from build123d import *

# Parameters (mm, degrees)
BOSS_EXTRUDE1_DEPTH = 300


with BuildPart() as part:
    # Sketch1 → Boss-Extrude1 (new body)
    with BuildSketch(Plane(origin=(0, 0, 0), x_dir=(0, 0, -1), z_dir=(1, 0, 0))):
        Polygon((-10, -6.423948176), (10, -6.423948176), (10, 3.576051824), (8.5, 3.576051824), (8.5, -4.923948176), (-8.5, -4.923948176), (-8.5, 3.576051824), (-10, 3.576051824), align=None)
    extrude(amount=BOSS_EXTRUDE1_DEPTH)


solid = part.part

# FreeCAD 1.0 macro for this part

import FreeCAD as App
import Part
import Sketcher
from FreeCAD import Vector
Q = App.Units.Quantity

doc = App.newDocument("Part")
body = doc.addObject("PartDesign::Body", "Body")

# Sketch on YZ plane
sketch1 = body.newObject("Sketcher::SketchObject", "Sketch")
sketch1.AttachmentSupport = (doc.getObject("YZ_Plane"), [""])
sketch1.MapMode = "FlatFace"
sketch1.addGeometry([
    Part.LineSegment(Vector(-6.423948, 10, 0), Vector(-6.423948, -10, 0)),  # 0
    Part.LineSegment(Vector(-6.423948, -10, 0), Vector(3.576052, -10, 0)),  # 1
    Part.LineSegment(Vector(3.576052, -10, 0), Vector(3.576052, -8.5, 0)),  # 2
    Part.LineSegment(Vector(3.576052, -8.5, 0), Vector(-4.923948, -8.5, 0)),  # 3
    Part.LineSegment(Vector(-4.923948, -8.5, 0), Vector(-4.923948, 8.5, 0)),  # 4
    Part.LineSegment(Vector(-4.923948, 8.5, 0), Vector(3.576052, 8.5, 0)),  # 5
    Part.LineSegment(Vector(3.576052, 8.5, 0), Vector(3.576052, 10, 0)),  # 6
    Part.LineSegment(Vector(3.576052, 10, 0), Vector(-6.423948, 10, 0)),  # 7
], False)
sketch1.addConstraint([
    Sketcher.Constraint("Coincident", 0, 2, 1, 1),
    Sketcher.Constraint("Coincident", 1, 2, 2, 1),
    Sketcher.Constraint("Coincident", 2, 2, 3, 1),
    Sketcher.Constraint("Coincident", 3, 2, 4, 1),
    Sketcher.Constraint("Coincident", 4, 2, 5, 1),
    Sketcher.Constraint("Coincident", 5, 2, 6, 1),
    Sketcher.Constraint("Coincident", 6, 2, 7, 1),
    Sketcher.Constraint("Coincident", 7, 2, 0, 1),
    Sketcher.Constraint("Vertical", 0),
    Sketcher.Constraint("Horizontal", 1),
    Sketcher.Constraint("Vertical", 2),
    Sketcher.Constraint("Horizontal", 3),
    Sketcher.Constraint("Vertical", 4),
    Sketcher.Constraint("Horizontal", 5),
    Sketcher.Constraint("Vertical", 6),
    Sketcher.Constraint("Horizontal", 7),
    Sketcher.Constraint("Symmetric", 2, 2, 5, 2, -1),
    Sketcher.Constraint("Equal", 2, 6),
    Sketcher.Constraint("DistanceX", 1, 1, 1, 2, Q("10 mm")),
    Sketcher.Constraint("DistanceY", 0, 2, 0, 1, Q("20 mm")),
    Sketcher.Constraint("DistanceY", 4, 1, 4, 2, Q("17 mm")),
    Sketcher.Constraint("DistanceX", 3, 2, 3, 1, Q("8.5 mm")),
    Sketcher.Constraint("DistanceX", 0, 2, -1, 1, Q("6.423948 mm")),
])
pad1 = body.newObject("PartDesign::Pad", "Pad")
pad1.Profile = sketch1
pad1.Length = 300

doc.recompute()
